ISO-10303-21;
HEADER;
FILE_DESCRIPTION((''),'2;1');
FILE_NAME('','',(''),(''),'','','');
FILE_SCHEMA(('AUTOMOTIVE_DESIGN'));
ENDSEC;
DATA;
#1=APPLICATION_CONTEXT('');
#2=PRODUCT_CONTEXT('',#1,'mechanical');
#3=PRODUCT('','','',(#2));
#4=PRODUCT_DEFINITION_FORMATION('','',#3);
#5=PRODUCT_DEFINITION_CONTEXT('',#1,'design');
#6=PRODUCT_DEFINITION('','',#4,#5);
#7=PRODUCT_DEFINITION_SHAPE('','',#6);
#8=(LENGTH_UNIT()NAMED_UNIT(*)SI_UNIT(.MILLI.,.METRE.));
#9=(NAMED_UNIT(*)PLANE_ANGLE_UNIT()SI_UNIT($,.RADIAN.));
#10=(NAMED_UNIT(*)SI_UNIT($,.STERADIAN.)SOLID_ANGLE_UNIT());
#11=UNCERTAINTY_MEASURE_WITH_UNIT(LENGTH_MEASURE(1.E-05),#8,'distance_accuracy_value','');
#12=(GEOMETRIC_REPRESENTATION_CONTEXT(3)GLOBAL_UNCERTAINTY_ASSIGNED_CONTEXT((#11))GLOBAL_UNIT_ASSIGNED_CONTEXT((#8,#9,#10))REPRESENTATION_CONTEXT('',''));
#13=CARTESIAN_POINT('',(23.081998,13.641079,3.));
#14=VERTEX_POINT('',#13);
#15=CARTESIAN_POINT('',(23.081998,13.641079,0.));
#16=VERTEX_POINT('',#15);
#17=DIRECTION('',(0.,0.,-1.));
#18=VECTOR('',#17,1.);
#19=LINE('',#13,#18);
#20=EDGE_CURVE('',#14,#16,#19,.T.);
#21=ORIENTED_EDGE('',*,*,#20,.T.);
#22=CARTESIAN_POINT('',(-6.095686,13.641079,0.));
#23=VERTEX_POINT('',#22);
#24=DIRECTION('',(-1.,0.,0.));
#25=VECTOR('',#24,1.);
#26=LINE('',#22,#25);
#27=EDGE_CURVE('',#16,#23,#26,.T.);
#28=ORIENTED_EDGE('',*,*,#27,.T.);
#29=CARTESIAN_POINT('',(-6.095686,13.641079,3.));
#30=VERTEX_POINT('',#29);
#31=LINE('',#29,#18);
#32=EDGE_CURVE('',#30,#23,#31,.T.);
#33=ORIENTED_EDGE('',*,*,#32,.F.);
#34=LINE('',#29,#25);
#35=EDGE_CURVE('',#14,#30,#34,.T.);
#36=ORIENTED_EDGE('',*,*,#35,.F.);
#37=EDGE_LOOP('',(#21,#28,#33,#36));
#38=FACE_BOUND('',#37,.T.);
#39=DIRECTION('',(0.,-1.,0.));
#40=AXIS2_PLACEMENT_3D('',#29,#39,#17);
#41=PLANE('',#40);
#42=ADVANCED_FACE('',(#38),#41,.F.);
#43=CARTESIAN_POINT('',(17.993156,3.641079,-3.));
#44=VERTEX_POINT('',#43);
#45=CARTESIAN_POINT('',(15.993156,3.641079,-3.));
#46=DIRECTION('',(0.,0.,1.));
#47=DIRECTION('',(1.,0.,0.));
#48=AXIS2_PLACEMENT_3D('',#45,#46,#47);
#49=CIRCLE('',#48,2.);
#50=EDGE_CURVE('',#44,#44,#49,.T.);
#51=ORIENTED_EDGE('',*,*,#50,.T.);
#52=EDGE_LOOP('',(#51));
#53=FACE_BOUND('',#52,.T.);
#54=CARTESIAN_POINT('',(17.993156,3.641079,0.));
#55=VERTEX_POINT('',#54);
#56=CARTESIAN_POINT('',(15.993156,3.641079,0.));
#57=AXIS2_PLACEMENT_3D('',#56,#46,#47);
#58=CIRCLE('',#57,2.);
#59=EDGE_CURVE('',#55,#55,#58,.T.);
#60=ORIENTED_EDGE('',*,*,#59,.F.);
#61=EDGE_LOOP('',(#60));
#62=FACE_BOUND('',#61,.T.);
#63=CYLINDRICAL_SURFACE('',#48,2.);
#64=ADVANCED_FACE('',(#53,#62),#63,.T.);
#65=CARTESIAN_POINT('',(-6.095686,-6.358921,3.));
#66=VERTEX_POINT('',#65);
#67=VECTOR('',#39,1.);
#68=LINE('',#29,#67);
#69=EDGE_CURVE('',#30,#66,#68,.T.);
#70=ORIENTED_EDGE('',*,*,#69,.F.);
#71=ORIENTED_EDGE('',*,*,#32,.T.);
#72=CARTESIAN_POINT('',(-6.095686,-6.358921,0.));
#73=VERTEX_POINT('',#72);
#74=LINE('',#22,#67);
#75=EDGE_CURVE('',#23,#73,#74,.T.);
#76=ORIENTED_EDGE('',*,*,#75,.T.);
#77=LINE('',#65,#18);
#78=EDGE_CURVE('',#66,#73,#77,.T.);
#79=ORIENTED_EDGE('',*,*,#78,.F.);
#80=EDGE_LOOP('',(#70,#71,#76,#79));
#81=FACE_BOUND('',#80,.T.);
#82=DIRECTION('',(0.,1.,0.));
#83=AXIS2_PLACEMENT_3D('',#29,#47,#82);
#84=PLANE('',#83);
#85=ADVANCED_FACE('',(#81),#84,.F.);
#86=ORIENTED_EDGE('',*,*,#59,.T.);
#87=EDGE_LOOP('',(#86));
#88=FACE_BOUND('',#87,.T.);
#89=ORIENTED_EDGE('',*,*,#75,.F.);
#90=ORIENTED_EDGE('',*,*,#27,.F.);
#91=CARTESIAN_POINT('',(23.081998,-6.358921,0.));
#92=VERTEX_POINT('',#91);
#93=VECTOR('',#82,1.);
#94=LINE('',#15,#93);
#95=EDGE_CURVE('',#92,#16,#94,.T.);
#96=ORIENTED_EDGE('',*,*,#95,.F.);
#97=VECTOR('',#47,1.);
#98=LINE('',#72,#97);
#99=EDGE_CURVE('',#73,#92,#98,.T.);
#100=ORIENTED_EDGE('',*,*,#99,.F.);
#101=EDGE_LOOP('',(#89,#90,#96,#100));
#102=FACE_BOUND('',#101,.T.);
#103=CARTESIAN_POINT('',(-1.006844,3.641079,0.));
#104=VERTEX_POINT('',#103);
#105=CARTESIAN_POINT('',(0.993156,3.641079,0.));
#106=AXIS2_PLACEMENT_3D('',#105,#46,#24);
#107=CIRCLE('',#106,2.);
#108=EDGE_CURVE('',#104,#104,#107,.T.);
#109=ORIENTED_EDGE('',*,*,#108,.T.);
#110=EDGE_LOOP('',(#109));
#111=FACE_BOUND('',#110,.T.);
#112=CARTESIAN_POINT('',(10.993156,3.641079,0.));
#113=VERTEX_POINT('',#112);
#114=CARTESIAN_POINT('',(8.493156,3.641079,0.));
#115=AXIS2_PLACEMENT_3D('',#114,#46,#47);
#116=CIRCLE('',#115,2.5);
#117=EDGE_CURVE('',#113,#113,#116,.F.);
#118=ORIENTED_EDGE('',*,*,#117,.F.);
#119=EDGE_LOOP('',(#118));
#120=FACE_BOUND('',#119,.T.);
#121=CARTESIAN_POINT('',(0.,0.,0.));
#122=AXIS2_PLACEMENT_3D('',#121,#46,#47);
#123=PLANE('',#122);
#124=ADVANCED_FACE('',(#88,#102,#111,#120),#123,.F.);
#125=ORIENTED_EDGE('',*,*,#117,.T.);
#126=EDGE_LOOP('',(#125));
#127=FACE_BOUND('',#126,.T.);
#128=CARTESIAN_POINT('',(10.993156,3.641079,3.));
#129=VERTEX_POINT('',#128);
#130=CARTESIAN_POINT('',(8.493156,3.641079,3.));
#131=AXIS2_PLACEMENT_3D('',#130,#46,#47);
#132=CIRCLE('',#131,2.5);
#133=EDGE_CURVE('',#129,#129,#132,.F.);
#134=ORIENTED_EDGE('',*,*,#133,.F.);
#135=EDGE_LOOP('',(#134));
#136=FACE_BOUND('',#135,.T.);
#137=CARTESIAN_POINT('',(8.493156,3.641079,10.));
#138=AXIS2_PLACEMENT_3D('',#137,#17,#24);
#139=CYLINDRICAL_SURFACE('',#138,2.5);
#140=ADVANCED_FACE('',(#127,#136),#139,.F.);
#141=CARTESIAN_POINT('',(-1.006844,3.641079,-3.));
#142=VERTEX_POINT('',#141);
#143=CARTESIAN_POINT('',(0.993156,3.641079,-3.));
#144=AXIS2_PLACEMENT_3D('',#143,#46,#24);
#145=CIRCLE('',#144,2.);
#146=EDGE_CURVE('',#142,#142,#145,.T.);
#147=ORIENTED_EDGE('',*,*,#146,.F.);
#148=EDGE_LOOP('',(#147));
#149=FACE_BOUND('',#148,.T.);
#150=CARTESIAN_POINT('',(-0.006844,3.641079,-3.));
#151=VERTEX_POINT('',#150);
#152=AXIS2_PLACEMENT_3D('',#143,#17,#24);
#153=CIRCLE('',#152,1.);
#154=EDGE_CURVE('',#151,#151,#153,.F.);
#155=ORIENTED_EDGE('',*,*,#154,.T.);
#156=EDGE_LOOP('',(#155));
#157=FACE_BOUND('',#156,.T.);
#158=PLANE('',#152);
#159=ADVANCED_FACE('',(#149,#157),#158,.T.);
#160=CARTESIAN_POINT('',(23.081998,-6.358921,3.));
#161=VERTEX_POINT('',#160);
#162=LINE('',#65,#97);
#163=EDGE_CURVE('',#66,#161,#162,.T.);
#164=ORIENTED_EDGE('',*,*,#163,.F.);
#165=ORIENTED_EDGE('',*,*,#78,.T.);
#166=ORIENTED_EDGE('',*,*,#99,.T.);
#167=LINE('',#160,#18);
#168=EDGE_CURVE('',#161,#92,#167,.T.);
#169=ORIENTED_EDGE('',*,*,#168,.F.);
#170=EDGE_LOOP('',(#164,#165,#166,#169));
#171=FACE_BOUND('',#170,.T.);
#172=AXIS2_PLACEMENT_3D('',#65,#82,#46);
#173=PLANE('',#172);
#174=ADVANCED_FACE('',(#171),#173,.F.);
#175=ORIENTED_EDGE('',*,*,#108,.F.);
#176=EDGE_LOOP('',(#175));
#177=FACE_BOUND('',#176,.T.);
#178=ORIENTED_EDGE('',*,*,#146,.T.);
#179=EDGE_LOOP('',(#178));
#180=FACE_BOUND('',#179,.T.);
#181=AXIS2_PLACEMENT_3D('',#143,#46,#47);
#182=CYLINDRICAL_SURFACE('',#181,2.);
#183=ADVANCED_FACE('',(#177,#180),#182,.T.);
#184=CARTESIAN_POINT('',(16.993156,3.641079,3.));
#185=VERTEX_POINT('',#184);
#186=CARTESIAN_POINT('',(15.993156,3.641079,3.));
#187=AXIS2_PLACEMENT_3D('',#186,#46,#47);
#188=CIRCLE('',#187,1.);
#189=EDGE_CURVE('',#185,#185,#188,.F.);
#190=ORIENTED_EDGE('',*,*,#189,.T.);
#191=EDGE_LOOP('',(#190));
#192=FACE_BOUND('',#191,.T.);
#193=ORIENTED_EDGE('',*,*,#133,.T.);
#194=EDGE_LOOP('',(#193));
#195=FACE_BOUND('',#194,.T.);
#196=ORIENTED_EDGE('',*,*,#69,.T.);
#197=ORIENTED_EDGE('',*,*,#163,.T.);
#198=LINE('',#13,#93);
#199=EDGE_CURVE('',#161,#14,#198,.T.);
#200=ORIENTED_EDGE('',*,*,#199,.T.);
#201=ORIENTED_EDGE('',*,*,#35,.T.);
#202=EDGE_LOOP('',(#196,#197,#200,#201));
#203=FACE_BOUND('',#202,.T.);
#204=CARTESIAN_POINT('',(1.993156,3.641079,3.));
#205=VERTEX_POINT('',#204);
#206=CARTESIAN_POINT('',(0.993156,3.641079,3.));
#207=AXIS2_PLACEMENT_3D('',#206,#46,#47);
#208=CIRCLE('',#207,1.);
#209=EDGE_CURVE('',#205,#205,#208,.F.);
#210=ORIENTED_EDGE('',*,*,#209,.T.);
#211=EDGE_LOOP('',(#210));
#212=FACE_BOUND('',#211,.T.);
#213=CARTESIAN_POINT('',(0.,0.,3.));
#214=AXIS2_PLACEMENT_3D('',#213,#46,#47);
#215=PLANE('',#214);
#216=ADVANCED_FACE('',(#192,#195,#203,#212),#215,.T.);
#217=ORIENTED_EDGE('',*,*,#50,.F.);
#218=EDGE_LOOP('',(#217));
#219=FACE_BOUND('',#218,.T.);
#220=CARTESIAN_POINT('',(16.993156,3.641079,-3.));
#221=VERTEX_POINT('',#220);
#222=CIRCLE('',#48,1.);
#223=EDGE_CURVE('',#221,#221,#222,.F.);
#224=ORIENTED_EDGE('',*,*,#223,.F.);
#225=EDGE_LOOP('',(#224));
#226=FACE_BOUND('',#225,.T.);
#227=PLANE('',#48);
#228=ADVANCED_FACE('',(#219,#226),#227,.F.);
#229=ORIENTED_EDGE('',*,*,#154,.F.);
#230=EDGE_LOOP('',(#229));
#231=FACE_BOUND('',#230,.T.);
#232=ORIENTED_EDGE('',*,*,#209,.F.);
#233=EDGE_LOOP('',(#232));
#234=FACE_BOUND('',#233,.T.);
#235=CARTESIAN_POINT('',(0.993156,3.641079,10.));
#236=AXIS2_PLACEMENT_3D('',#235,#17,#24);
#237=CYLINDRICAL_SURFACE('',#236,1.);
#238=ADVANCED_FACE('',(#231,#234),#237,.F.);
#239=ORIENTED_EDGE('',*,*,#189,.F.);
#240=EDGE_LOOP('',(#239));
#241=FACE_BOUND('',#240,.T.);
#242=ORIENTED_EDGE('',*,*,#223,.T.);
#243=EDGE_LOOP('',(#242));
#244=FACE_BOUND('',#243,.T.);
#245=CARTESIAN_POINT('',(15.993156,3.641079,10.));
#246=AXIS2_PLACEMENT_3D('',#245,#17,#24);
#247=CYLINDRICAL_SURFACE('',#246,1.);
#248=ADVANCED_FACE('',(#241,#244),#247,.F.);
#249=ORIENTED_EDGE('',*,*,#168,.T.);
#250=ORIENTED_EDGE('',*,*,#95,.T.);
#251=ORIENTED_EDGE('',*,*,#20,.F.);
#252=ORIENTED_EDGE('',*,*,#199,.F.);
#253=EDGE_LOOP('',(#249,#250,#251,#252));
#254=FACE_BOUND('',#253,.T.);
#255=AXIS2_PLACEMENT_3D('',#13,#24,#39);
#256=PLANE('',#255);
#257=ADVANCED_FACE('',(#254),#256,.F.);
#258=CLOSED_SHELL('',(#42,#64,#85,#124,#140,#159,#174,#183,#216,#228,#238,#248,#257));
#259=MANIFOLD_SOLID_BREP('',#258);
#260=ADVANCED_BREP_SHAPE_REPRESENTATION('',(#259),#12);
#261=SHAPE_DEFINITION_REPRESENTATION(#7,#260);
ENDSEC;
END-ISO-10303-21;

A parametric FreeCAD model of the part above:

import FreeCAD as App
import Part
import Sketcher
from FreeCAD import Vector


def add_polygon(sketch, points):
    """Adds a closed chain of lines whose ends are joined by coincident constraints."""
    first, n = sketch.GeometryCount, len(points)
    for a, b in zip(points, points[1:] + points[:1]):
        sketch.addGeometry(Part.LineSegment(App.Vector(*a, 0), App.Vector(*b, 0)), False)
    for i in range(n):
        sketch.addConstraint(Sketcher.Constraint("Coincident", first + i, 2, first + (i + 1) % n, 1))

doc = App.newDocument("Part")
params = doc.addObject("Spreadsheet::Sheet", "Params")
for row, (alias, value) in enumerate([
    ("sketch1_height", "20 mm"),
    ("pad1_length", "3 mm"),
    ("sketch2_diameter", "4 mm"),
    ("pad2_length", "3 mm"),
    ("sketch3_diameter", "5 mm"),
    ("sketch3_diameter2", "2 mm"),
], start=1):
    params.set(f"A{row}", alias)
    params.set(f"B{row}", "=" + value)
    params.setAlias(f"B{row}", alias)

body = doc.addObject("PartDesign::Body", "Body")

# Sketch on XY plane
sketch1 = doc.addObject("Sketcher::SketchObject", "Sketch")
body.addObject(sketch1)
sketch1.AttachmentSupport = (doc.XY_Plane, [""])
sketch1.MapMode = "FlatFace"
add_polygon(sketch1, [(-6, 14), (-6, -6), (23, -6), (23, 14)])  # lines 0-3
sketch1.addConstraint(Sketcher.Constraint("Vertical", 0))
sketch1.addConstraint(Sketcher.Constraint("Horizontal", 1))
sketch1.addConstraint(Sketcher.Constraint("Vertical", 2))
sketch1.addConstraint(Sketcher.Constraint("Horizontal", 3))
sketch1.addConstraint(Sketcher.Constraint("DistanceY", 0, 2, 0, 1, 20.0))
sketch1.addConstraint(Sketcher.Constraint("DistanceX", -1, 1, 1, 2, 23.081998))
sketch1.addConstraint(Sketcher.Constraint("DistanceX", 1, 1, 1, 2, 29.177684))
sketch1.addConstraint(Sketcher.Constraint("DistanceY", 0, 2, -1, 1, 6.358921))
sketch1.setExpression("Constraints[8]", "Params.sketch1_height")
pad1 = doc.addObject("PartDesign::Pad", "Pad")
body.addObject(pad1)
pad1.Profile = sketch1
pad1.setExpression("Length", "Params.pad1_length")

# Sketch on XY plane
sketch2 = doc.addObject("Sketcher::SketchObject", "Sketch001")
body.addObject(sketch2)
sketch2.AttachmentSupport = (doc.XY_Plane, [""])
sketch2.MapMode = "FlatFace"
sketch2.addGeometry(Part.Circle(Vector(16, 3.6, 0), Vector(0, 0, 1), 2), False)
sketch2.addGeometry(Part.Circle(Vector(1, 3.6, 0), Vector(0, 0, 1), 2), False)
sketch2.addConstraint(Sketcher.Constraint("Equal", 0, 1))
sketch2.addConstraint(Sketcher.Constraint("Horizontal", 0, 3, 1, 3))
sketch2.addConstraint(Sketcher.Constraint("Diameter", 0, 4.0))
sketch2.addConstraint(Sketcher.Constraint("DistanceX", 1, 3, 0, 3, 15.0))
sketch2.addConstraint(Sketcher.Constraint("DistanceY", -1, 1, 0, 3, 3.641079))
sketch2.addConstraint(Sketcher.Constraint("DistanceX", -1, 1, 0, 3, 15.993156))
sketch2.setExpression("Constraints[2]", "Params.sketch2_diameter")
pad2 = doc.addObject("PartDesign::Pad", "Pad001")
body.addObject(pad2)
pad2.Profile = sketch2
pad2.setExpression("Length", "Params.pad2_length")
pad2.Reversed = True

# Sketch on XY plane
sketch3 = doc.addObject("Sketcher::SketchObject", "Sketch002")
body.addObject(sketch3)
sketch3.AttachmentSupport = (doc.XY_Plane, [""])
sketch3.MapMode = "FlatFace"
sketch3.addGeometry(Part.Circle(Vector(8.5, 3.6, 0), Vector(0, 0, 1), 2.5), False)
sketch3.addGeometry(Part.Circle(Vector(16, 3.6, 0), Vector(0, 0, 1), 1), False)
sketch3.addGeometry(Part.Circle(Vector(1, 3.6, 0), Vector(0, 0, 1), 1), False)
sketch3.addConstraint(Sketcher.Constraint("Equal", 1, 2))
sketch3.addConstraint(Sketcher.Constraint("Horizontal", 0, 3, 1, 3))
sketch3.addConstraint(Sketcher.Constraint("Horizontal", 1, 3, 2, 3))
sketch3.addConstraint(Sketcher.Constraint("Diameter", 0, 5.0))
sketch3.addConstraint(Sketcher.Constraint("Diameter", 1, 2.0))
sketch3.addConstraint(Sketcher.Constraint("DistanceX", 2, 3, 1, 3, 15.0))
sketch3.addConstraint(Sketcher.Constraint("DistanceX", 0, 3, 1, 3, 7.5))
sketch3.addConstraint(Sketcher.Constraint("DistanceY", -1, 1, 0, 3, 3.641079))
sketch3.addConstraint(Sketcher.Constraint("DistanceX", -1, 1, 0, 3, 8.493156))
sketch3.setExpression("Constraints[3]", "Params.sketch3_diameter")
sketch3.setExpression("Constraints[4]", "Params.sketch3_diameter2")
pocket1 = doc.addObject("PartDesign::Pocket", "Pocket")
body.addObject(pocket1)
pocket1.Profile = sketch3
pocket1.Type = "ThroughAll"
pocket1.Midplane = True

doc.recompute()
